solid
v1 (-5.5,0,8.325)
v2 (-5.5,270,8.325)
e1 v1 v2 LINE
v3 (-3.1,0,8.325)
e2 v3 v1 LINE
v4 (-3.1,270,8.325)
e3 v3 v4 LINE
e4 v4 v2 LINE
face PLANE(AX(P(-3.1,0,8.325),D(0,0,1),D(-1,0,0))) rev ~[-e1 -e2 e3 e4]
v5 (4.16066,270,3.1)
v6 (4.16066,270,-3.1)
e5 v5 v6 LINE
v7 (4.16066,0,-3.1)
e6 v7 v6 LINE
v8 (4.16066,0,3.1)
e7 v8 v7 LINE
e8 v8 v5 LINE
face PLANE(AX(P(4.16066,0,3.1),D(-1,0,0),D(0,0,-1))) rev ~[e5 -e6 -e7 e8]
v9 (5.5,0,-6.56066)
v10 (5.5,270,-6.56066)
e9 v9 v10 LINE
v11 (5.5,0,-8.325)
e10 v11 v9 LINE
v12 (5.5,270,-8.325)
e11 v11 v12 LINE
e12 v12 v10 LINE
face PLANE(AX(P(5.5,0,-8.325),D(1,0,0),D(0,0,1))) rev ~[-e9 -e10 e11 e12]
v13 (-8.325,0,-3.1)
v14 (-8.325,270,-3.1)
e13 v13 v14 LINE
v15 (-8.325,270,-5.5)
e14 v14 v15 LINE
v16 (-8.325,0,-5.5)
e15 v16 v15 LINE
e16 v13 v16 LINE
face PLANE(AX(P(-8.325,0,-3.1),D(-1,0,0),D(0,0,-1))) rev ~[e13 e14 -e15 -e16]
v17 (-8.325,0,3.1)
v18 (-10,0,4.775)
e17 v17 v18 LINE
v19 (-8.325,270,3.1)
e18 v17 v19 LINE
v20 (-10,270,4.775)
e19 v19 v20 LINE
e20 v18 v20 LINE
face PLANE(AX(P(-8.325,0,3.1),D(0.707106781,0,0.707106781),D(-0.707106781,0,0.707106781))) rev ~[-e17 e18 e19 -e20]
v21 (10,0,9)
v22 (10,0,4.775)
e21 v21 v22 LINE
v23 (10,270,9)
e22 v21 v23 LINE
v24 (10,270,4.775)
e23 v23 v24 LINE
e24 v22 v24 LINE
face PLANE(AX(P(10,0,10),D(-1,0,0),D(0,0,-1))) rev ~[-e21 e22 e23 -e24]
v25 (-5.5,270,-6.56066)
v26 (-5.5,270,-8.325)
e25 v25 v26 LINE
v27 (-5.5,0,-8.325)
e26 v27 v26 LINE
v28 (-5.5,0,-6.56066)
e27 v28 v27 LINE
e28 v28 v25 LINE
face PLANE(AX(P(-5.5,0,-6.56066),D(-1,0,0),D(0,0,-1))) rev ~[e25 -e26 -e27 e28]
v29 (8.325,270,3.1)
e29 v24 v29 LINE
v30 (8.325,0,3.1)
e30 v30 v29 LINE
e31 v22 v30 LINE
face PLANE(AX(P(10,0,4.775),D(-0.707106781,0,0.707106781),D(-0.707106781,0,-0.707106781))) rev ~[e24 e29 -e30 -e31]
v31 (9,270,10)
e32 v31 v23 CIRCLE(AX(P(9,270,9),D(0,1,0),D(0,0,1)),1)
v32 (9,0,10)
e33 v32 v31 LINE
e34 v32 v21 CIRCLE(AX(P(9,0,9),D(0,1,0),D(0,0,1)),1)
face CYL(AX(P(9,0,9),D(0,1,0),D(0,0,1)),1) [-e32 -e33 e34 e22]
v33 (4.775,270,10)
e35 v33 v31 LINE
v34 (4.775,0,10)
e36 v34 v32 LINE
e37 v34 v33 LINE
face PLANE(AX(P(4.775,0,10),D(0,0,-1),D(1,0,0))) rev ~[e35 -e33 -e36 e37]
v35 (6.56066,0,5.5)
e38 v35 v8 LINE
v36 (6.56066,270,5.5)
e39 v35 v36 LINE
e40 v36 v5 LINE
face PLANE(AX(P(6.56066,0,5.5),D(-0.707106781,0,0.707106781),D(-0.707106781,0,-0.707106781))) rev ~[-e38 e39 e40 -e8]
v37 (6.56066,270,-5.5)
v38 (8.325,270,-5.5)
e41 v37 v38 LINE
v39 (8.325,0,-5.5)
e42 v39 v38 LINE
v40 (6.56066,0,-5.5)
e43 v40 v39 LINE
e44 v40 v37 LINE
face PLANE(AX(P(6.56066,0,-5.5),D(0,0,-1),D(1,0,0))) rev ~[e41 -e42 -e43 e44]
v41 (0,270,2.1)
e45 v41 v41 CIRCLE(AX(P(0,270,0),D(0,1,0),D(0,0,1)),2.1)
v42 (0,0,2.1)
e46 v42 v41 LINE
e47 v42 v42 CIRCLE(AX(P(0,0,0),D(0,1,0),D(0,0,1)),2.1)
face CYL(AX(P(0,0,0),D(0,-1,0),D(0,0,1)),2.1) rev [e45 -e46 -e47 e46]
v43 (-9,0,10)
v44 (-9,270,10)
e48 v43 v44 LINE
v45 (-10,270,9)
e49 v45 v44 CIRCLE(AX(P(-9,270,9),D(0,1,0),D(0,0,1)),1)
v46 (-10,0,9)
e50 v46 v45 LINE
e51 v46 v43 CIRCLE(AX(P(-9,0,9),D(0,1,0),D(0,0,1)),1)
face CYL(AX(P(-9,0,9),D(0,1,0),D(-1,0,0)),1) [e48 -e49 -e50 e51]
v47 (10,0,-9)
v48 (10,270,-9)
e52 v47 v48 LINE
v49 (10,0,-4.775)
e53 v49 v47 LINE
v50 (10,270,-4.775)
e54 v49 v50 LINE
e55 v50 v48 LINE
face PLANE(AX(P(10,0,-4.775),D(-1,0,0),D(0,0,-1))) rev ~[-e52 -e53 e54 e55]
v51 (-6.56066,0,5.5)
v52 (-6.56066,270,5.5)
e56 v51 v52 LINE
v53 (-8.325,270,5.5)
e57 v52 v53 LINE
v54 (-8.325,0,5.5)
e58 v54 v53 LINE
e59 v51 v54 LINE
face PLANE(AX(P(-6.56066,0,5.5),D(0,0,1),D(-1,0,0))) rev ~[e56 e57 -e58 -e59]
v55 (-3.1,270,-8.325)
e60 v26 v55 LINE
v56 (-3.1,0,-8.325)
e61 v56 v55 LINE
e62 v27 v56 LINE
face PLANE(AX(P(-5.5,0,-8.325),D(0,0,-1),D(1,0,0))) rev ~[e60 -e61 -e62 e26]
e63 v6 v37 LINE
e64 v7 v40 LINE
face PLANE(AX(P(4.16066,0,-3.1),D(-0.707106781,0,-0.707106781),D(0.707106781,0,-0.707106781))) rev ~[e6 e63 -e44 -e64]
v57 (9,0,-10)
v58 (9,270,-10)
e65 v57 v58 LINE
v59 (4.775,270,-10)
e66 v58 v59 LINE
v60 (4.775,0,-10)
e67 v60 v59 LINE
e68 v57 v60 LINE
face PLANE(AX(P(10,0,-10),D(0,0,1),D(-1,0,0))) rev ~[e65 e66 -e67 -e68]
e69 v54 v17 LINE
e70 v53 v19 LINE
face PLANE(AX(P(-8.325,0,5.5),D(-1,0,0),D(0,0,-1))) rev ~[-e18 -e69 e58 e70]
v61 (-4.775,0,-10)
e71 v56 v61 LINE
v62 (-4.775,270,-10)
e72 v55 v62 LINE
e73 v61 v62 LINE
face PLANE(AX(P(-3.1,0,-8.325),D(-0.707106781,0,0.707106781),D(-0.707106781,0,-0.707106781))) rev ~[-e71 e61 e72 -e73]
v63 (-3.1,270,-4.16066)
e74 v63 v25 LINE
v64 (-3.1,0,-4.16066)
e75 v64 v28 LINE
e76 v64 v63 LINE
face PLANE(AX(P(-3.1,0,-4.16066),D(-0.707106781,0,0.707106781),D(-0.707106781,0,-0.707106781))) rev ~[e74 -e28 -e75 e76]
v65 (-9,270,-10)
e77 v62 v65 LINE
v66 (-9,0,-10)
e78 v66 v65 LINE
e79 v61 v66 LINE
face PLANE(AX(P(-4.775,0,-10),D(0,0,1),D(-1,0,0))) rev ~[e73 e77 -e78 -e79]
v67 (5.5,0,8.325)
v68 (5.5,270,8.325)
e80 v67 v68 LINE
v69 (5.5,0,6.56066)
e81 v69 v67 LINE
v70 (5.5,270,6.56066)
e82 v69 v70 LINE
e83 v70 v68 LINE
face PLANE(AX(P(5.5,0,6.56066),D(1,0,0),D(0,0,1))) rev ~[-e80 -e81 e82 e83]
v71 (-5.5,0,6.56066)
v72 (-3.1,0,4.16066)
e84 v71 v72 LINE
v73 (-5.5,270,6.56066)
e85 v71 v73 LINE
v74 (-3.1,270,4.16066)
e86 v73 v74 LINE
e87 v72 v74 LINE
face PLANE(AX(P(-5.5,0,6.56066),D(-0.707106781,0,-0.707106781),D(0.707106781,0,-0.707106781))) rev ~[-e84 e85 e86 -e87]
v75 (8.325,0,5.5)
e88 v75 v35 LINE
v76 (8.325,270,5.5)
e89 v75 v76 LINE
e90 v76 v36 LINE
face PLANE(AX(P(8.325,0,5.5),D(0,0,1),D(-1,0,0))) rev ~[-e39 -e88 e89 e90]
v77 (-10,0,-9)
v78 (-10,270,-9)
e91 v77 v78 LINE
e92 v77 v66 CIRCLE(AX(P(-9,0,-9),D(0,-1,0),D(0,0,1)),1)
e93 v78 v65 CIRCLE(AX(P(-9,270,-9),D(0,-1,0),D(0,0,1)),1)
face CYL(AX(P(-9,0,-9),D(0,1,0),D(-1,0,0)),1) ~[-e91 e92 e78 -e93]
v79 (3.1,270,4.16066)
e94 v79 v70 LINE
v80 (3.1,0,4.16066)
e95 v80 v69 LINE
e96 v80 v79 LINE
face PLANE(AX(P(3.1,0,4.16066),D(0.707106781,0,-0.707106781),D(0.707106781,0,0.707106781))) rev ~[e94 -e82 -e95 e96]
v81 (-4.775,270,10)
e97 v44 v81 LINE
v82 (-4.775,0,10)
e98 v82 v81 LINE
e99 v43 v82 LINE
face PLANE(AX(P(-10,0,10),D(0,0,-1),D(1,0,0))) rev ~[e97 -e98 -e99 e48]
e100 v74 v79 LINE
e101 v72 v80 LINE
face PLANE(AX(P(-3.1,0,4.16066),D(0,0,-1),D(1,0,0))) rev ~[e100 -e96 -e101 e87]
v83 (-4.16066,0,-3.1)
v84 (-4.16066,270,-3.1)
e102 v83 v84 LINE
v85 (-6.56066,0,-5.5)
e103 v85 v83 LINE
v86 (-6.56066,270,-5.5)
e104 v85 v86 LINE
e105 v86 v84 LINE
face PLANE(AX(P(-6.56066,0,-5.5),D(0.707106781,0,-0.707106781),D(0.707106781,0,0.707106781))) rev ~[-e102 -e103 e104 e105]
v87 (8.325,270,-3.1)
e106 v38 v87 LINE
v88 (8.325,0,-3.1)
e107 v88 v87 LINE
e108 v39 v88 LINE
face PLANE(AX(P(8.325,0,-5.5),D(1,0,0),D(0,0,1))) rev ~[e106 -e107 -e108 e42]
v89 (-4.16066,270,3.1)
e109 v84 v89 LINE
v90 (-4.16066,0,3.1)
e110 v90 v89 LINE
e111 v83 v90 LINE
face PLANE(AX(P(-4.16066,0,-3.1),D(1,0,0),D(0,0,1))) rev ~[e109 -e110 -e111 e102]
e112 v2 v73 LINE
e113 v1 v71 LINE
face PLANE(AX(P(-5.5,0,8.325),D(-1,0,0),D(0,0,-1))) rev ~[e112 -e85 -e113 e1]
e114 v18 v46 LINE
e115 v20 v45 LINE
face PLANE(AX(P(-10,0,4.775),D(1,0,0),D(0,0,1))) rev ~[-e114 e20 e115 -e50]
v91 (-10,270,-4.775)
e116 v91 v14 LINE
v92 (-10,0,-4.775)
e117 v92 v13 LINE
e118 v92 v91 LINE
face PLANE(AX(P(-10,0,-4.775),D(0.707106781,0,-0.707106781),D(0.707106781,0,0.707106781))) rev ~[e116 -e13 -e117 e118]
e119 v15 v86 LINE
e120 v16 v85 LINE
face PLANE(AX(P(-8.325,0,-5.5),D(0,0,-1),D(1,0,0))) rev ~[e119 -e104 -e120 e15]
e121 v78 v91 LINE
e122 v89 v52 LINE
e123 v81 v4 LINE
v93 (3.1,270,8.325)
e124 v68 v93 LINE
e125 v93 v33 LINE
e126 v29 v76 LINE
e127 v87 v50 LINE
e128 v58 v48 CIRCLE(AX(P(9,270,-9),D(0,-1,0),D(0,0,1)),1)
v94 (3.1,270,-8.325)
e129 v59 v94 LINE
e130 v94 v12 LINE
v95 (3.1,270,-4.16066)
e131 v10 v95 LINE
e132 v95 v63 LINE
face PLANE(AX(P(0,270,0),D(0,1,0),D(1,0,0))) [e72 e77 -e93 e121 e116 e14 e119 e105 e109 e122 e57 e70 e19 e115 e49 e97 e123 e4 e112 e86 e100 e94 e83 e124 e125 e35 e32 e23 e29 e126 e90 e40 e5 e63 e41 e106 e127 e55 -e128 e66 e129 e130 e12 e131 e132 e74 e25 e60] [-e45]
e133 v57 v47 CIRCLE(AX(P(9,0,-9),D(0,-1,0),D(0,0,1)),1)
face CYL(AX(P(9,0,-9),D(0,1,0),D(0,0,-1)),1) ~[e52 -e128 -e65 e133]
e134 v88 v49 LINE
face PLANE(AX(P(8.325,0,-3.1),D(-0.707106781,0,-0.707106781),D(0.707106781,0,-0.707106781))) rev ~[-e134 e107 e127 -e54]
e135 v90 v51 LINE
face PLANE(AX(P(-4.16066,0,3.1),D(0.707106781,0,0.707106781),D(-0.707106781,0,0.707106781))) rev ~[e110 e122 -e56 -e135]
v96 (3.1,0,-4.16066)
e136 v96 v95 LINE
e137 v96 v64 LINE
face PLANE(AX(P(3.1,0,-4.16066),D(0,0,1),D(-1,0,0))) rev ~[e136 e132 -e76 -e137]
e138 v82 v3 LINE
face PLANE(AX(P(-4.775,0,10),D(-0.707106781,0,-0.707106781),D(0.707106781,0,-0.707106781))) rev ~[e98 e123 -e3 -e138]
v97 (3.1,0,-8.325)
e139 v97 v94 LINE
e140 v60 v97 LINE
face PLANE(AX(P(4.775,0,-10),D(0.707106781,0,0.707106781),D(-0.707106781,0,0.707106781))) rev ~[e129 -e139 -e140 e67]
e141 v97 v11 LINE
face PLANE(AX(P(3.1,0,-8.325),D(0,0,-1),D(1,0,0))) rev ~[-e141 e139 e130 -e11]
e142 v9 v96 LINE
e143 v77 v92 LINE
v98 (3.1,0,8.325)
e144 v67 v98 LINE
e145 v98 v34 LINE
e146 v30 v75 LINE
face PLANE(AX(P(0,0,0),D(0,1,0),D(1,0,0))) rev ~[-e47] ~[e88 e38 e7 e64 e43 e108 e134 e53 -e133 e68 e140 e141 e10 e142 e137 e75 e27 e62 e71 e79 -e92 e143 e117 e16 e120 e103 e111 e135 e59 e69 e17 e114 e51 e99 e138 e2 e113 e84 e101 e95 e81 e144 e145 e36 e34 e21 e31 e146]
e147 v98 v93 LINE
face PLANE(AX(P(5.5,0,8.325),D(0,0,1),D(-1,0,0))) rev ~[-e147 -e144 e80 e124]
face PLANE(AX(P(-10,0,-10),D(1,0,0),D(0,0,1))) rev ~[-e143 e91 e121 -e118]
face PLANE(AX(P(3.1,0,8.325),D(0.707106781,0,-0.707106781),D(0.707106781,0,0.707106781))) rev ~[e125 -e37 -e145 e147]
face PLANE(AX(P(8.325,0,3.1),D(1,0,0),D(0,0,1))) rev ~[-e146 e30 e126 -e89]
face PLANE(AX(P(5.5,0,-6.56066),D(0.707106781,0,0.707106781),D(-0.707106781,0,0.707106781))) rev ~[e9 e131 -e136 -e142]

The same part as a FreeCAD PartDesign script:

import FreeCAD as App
import Part
import Sketcher

V = App.Vector


def edges_at(feature, points):
    """Names of the edges that pass closest to the given points."""
    edges = feature.Shape.Edges
    near = lambda p: min(range(len(edges)), key=lambda i: edges[i].distToShape(Part.Vertex(*p))[0])
    return sorted({f"Edge{near(p) + 1}" for p in points})


def add_polygon(sketch, points):
    """Adds a closed chain of lines whose ends are joined by coincident constraints."""
    first, n = sketch.GeometryCount, len(points)
    for a, b in zip(points, points[1:] + points[:1]):
        sketch.addGeometry(Part.LineSegment(App.Vector(*a, 0), App.Vector(*b, 0)), False)
    for i in range(n):
        sketch.addConstraint(Sketcher.Constraint("Coincident", first + i, 2, first + (i + 1) % n, 1))

doc = App.newDocument("Part")
body = doc.addObject("PartDesign::Body", "Body")

# Sketch on XZ plane
sketch1 = body.newObject("Sketcher::SketchObject", "Sketch")
sketch1.AttachmentSupport = (doc.getObject("XZ_Plane"), [""])
sketch1.MapMode = "FlatFace"
add_polygon(sketch1, [(-8.3, -3.1), (-8.3, -5.5), (-6.6, -5.5), (-4.2, -3.1), (-4.2, 3.1), (-6.6, 5.5), (-8.3, 5.5), (-8.3, 3.1), (-10, 4.8), (-10, 10), (-4.8, 10), (-3.1, 8.3), (-5.5, 8.3), (-5.5, 6.6), (-3.1, 4.2), (3.1, 4.2), (5.5, 6.6), (5.5, 8.3), (3.1, 8.3), (4.8, 10), (10, 10), (10, 4.8), (8.3, 3.1), (8.3, 5.5), (6.6, 5.5), (4.2, 3.1), (4.2, -3.1), (6.6, -5.5), (8.3, -5.5), (8.3, -3.1), (10, -4.8), (10, -10), (4.8, -10), (3.1, -8.3), (5.5, -8.3), (5.5, -6.6), (3.1, -4.2), (-3.1, -4.2), (-5.5, -6.6), (-5.5, -8.3), (-3.1, -8.3), (-4.8, -10), (-10, -10), (-10, -4.8)])  # lines 0-43
sketch1.addGeometry(Part.Circle(V(0, 0, 0), V(0, 0, 1), 2.1), False)  # 44
sketch1.addConstraint([
    Sketcher.Constraint("Vertical", 0),
    Sketcher.Constraint("Horizontal", 1),
    Sketcher.Constraint("Vertical", 3),
    Sketcher.Constraint("Horizontal", 5),
    Sketcher.Constraint("Vertical", 6),
    Sketcher.Constraint("Vertical", 8),
    Sketcher.Constraint("Horizontal", 9),
    Sketcher.Constraint("Horizontal", 11),
    Sketcher.Constraint("Vertical", 12),
    Sketcher.Constraint("Horizontal", 14),
    Sketcher.Constraint("Vertical", 16),
    Sketcher.Constraint("Horizontal", 17),
    Sketcher.Constraint("Horizontal", 19),
    Sketcher.Constraint("Vertical", 20),
    Sketcher.Constraint("Vertical", 22),
    Sketcher.Constraint("Horizontal", 23),
    Sketcher.Constraint("Vertical", 25),
    Sketcher.Constraint("Horizontal", 27),
    Sketcher.Constraint("Vertical", 28),
    Sketcher.Constraint("Vertical", 30),
    Sketcher.Constraint("Horizontal", 31),
    Sketcher.Constraint("Horizontal", 33),
    Sketcher.Constraint("Vertical", 34),
    Sketcher.Constraint("Horizontal", 36),
    Sketcher.Constraint("Vertical", 38),
    Sketcher.Constraint("Horizontal", 39),
    Sketcher.Constraint("Horizontal", 41),
    Sketcher.Constraint("Vertical", 42),
    Sketcher.Constraint("Coincident", 44, 3, -1, 1),
    Sketcher.Constraint("Symmetric", 0, 2, 22, 2, -1, 1),
    Sketcher.Constraint("Symmetric", 2, 2, 24, 2, -1, 1),
    Sketcher.Constraint("Symmetric", 4, 2, 26, 2, -1, 1),
    Sketcher.Constraint("Symmetric", 6, 2, 28, 2, -1, 1),
    Sketcher.Constraint("Symmetric", 7, 2, 29, 2, -1, 1),
    Sketcher.Constraint("Symmetric", 9, 2, 31, 2, -1, 1),
    Sketcher.Constraint("Symmetric", 10, 2, 32, 2, -1, 1),
    Sketcher.Constraint("Symmetric", 12, 2, 34, 2, -1, 1),
    Sketcher.Constraint("Symmetric", 13, 2, 35, 2, -1, 1),
    Sketcher.Constraint("Symmetric", 15, 2, 37, 2, -1, 1),
    Sketcher.Constraint("Symmetric", 17, 2, 39, 2, -1, 1),
    Sketcher.Constraint("Symmetric", 18, 2, 40, 2, -1, 1),
    Sketcher.Constraint("Symmetric", 20, 2, 42, 2, -1, 1),
    Sketcher.Constraint("Symmetric", 12, 2, 15, 2, -2),
    Sketcher.Constraint("Symmetric", 10, 2, 17, 2, -2),
    Sketcher.Constraint("Symmetric", 9, 2, 18, 2, -2),
    Sketcher.Constraint("Symmetric", 7, 2, 20, 2, -2),
    Sketcher.Constraint("Symmetric", 6, 2, 21, 2, -2),
    Sketcher.Constraint("Symmetric", 4, 2, 23, 2, -2),
    Sketcher.Constraint("Perpendicular", 2, 4),
    Sketcher.Constraint("Parallel", 4, 7),
    Sketcher.Constraint("Parallel", 7, 10),
    Sketcher.Constraint("Parallel", 10, 13),
    Sketcher.Constraint("Perpendicular", 13, 15),
    Sketcher.Constraint("Parallel", 15, 18),
    Sketcher.Constraint("Parallel", 21, 24),
    Sketcher.Constraint("Perpendicular", 24, 26),
    Sketcher.Constraint("Perpendicular", 35, 37),
    Sketcher.Constraint("Parallel", 40, 43),
    Sketcher.Constraint("Horizontal", 3, 2, 6, 2),
    Sketcher.Constraint("Vertical", 10, 2, 13, 2),
    Sketcher.Constraint("Equal", 39, 0),
    Sketcher.Constraint("Equal", 36, 3),
    Sketcher.Constraint("Equal", 41, 8),
    Sketcher.Constraint("Equal", 27, 12),
    Sketcher.Constraint("Equal", 7, 10),
    Sketcher.Constraint("Diameter", 44, 4.2),
    Sketcher.Constraint("DistanceX", 11, 2, 11, 1, 2.4),
    Sketcher.Constraint("DistanceX", 14, 1, 14, 2, 6.2),
    Sketcher.Constraint("DistanceX", 7, 2, -1, 1, 10.0),
    Sketcher.Constraint("DistanceX", 9, 1, 9, 2, 5.225),
    Sketcher.Constraint("DistanceX", 1, 1, 1, 2, 1.76434),
])
pad1 = body.newObject("PartDesign::Pad", "Pad")
pad1.Profile = sketch1
pad1.Length = 270
pad1.Reversed = True
doc.recompute()

fillet = body.newObject("PartDesign::Fillet", "Fillet")
fillet.Base = (pad1, edges_at(pad1, [
    (10, 135, -10),
    (10, 135, 10),
    (-10, 135, 10),
    (-10, 135, -10),
]))
fillet.Radius = 1

doc.recompute()
